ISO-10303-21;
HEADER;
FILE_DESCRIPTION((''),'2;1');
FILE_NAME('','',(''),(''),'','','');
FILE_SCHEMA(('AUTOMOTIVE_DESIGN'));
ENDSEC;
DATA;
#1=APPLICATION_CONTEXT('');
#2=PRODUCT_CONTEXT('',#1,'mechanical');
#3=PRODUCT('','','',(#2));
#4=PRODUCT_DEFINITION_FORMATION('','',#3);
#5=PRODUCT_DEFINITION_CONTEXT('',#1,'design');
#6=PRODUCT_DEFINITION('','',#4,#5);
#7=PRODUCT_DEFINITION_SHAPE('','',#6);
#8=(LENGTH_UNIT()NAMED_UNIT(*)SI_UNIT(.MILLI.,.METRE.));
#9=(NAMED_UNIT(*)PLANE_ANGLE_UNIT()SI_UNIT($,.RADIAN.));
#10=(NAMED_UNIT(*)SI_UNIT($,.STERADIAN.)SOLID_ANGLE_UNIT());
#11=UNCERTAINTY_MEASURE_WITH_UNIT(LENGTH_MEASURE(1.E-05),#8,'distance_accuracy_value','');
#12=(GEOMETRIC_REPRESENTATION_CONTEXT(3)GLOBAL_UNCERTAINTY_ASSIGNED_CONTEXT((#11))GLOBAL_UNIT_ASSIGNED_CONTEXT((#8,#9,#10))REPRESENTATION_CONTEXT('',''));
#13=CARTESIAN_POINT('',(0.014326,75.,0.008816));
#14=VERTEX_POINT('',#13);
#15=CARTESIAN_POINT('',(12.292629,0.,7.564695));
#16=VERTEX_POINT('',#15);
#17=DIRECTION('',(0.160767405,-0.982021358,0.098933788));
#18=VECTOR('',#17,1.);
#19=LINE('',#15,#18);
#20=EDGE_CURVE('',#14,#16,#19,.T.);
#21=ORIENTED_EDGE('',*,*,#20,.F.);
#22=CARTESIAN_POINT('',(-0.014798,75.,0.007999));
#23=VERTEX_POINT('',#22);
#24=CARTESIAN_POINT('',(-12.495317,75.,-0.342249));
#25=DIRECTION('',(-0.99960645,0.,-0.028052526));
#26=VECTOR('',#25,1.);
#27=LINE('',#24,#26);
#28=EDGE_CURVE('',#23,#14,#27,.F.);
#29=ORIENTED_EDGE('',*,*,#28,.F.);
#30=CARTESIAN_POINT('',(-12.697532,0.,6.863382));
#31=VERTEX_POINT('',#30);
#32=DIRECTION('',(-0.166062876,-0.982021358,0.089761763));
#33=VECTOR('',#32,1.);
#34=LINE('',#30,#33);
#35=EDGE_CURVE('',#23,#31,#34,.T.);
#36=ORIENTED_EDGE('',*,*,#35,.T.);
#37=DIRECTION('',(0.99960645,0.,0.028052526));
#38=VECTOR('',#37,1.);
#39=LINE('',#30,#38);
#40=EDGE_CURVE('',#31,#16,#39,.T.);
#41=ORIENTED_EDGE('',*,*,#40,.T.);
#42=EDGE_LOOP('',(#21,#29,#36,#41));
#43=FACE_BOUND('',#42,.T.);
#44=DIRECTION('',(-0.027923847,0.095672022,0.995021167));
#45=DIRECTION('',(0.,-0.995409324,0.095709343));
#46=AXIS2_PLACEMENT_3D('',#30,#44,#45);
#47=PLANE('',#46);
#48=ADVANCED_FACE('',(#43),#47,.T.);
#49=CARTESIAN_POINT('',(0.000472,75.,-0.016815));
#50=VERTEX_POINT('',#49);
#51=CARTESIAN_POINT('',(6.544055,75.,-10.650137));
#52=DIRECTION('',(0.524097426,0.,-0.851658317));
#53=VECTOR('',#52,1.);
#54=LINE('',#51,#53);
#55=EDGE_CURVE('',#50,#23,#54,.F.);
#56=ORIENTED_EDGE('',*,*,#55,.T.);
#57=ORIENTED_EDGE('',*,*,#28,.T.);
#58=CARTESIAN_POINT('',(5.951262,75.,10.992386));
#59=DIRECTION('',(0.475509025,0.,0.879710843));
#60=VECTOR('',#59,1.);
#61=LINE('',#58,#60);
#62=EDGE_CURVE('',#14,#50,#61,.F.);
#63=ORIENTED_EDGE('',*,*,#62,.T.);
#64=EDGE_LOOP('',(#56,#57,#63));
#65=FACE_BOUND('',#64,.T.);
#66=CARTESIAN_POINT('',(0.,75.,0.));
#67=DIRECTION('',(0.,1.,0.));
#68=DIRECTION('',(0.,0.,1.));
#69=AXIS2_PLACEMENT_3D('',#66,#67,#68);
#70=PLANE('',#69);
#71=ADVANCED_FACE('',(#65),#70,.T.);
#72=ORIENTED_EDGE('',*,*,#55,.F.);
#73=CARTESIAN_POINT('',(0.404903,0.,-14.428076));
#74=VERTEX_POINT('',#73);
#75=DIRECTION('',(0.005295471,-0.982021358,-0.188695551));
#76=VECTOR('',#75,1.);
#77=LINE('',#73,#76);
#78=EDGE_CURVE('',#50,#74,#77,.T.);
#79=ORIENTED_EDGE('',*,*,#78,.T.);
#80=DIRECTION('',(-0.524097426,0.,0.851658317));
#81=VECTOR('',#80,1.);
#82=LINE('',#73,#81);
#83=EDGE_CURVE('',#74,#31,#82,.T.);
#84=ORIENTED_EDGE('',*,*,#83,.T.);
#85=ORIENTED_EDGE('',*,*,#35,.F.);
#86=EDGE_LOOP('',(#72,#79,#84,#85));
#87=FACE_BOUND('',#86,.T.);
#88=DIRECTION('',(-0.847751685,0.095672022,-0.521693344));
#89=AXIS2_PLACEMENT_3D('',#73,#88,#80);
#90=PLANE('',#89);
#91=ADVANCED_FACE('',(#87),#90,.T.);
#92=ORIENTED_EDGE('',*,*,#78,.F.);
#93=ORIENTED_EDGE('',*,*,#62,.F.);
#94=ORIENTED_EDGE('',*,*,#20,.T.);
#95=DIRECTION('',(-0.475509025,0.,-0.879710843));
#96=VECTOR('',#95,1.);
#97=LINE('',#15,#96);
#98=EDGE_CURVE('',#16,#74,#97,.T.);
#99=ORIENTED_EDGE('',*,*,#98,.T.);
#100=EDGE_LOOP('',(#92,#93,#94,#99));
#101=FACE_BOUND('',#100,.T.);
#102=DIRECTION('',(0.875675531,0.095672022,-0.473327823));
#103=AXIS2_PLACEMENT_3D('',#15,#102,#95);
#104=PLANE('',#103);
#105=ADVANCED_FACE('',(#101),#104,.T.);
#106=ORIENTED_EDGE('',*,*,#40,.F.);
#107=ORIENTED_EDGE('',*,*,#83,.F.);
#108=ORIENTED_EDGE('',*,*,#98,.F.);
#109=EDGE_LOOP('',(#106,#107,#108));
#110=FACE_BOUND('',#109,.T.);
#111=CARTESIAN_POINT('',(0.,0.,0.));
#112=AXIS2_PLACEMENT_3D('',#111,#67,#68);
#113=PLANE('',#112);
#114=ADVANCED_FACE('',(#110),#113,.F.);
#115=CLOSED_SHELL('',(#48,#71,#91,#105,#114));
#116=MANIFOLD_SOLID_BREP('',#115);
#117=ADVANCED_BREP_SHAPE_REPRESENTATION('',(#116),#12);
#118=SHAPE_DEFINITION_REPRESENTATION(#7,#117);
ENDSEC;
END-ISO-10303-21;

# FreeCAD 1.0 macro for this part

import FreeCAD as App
import Part
import Sketcher

doc = App.newDocument("Part")
body = doc.addObject("PartDesign::Body", "Body")

# Sketch on XZ plane
sketch1 = body.newObject("Sketcher::SketchObject", "Sketch")
sketch1.AttachmentSupport = (doc.getObject("XZ_Plane"), [""])
sketch1.MapMode = "FlatFace"
sketch1.addGeometry(Part.LineSegment(App.Vector(12, 8, 0), App.Vector(0, -14, 0)), False)
sketch1.addGeometry(Part.LineSegment(App.Vector(0, -14, 0), App.Vector(-13, 7, 0)), False)
sketch1.addGeometry(Part.LineSegment(App.Vector(-13, 7, 0), App.Vector(12, 8, 0)), False)
sketch1.addConstraint(Sketcher.Constraint("Coincident", 0, 2, 1, 1))
sketch1.addConstraint(Sketcher.Constraint("Coincident", 1, 2, 2, 1))
sketch1.addConstraint(Sketcher.Constraint("Coincident", 2, 2, 0, 1))
sketch1.addConstraint(Sketcher.Constraint("Equal", 0, 1))
sketch1.addConstraint(Sketcher.Constraint("Equal", 1, 2))
sketch1.addConstraint(Sketcher.Constraint("Distance", 0, 25.0))
sketch1.addConstraint(Sketcher.Constraint("DistanceY", -1, 1, 1, 2, 6.863382))
sketch1.addConstraint(Sketcher.Constraint("DistanceX", -1, 1, 2, 2, 12.292629))
sketch1.addConstraint(Sketcher.Constraint("DistanceY", 0, 2, 2, 2, 21.992771))
pad1 = body.newObject("PartDesign::Pad", "Pad")
pad1.Profile = sketch1
pad1.Length = 75
pad1.Reversed = True
pad1.TaperAngle = -5.49

doc.recompute()
